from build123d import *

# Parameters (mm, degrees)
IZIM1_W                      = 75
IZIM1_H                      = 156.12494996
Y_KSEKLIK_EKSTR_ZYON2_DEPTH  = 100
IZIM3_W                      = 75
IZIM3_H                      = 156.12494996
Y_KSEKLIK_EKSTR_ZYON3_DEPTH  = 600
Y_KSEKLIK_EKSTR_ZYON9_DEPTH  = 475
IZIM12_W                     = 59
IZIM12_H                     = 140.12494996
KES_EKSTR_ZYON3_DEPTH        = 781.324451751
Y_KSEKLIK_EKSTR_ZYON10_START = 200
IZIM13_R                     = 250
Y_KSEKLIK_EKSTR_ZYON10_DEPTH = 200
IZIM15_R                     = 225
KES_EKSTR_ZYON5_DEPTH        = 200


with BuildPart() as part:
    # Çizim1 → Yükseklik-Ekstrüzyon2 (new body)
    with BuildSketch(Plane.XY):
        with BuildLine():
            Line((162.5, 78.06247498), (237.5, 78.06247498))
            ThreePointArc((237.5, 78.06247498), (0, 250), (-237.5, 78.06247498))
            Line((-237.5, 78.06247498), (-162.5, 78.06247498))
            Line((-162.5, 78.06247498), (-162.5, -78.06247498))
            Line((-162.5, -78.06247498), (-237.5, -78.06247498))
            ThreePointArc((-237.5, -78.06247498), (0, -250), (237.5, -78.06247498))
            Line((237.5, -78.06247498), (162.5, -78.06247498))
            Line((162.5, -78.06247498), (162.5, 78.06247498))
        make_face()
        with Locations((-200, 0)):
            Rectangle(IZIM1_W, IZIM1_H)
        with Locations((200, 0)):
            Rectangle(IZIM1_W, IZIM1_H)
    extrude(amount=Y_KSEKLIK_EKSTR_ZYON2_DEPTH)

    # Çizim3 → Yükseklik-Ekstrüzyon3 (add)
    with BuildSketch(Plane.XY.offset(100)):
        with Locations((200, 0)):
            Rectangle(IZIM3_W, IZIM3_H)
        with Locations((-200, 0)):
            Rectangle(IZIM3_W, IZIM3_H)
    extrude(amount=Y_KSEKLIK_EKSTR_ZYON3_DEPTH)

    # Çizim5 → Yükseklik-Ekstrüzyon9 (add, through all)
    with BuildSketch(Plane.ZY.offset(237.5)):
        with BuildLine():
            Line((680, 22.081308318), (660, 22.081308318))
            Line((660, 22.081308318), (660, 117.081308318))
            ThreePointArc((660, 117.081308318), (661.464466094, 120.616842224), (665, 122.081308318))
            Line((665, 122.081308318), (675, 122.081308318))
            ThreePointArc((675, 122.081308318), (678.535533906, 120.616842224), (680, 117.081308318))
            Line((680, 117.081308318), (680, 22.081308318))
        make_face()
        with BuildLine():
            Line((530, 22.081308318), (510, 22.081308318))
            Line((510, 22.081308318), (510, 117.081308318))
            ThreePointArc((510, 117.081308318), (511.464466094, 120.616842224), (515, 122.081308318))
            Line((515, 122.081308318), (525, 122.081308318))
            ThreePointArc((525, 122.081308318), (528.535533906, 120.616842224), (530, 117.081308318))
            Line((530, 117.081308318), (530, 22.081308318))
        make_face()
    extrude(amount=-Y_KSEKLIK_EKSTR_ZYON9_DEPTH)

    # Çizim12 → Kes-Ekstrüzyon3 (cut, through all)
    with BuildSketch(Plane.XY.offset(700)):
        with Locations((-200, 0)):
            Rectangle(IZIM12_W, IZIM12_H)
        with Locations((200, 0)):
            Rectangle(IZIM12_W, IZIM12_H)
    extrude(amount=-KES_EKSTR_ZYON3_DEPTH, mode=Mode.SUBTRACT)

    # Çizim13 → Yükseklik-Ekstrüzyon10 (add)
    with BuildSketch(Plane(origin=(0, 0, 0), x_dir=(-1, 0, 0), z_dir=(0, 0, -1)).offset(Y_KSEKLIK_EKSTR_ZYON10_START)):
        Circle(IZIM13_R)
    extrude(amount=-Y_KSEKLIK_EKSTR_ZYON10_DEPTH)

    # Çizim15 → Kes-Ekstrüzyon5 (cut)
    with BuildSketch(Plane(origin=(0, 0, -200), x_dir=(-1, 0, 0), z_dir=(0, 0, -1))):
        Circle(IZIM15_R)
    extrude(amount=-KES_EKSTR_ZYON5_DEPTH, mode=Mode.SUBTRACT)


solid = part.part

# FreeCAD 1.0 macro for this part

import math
import FreeCAD as App
import Part
import Sketcher

V = App.Vector

doc = App.newDocument("Part")
body = doc.addObject("PartDesign::Body", "Body")

# Sketch on XY plane
sketch1 = doc.addObject("Sketcher::SketchObject", "Sketch")
body.addObject(sketch1)
sketch1.AttachmentSupport = (doc.XY_Plane, [""])
sketch1.MapMode = "FlatFace"
sketch1.addGeometry(Part.ArcOfCircle(Part.Circle(V(0, 0, 0), V(0, 0, 1), 250), math.radians(18), math.radians(162)), False)
sketch1.addGeometry(Part.LineSegment(V(-238, 78, 0), V(-238, -78, 0)), False)
sketch1.addGeometry(Part.ArcOfCircle(Part.Circle(V(0, 0, 0), V(0, 0, 1), 250), math.radians(-162), math.radians(-18)), False)
sketch1.addGeometry(Part.LineSegment(V(238, -78, 0), V(238, 78, 0)), False)
sketch1.addConstraint(Sketcher.Constraint("Coincident", 0, 2, 1, 1))
sketch1.addConstraint(Sketcher.Constraint("Coincident", 1, 2, 2, 1))
sketch1.addConstraint(Sketcher.Constraint("Coincident", 2, 2, 3, 1))
sketch1.addConstraint(Sketcher.Constraint("Coincident", 3, 2, 0, 1))
sketch1.addConstraint(Sketcher.Constraint("Vertical", 1))
sketch1.addConstraint(Sketcher.Constraint("Vertical", 3))
sketch1.addConstraint(Sketcher.Constraint("Coincident", 0, 3, -1, 1))
sketch1.addConstraint(Sketcher.Constraint("Coincident", 2, 3, -1, 1))
sketch1.addConstraint(Sketcher.Constraint("Equal", 0, 2))
sketch1.addConstraint(Sketcher.Constraint("Horizontal", 1, 2, 2, 2))
sketch1.addConstraint(Sketcher.Constraint("Radius", 0, 250.0))
sketch1.addConstraint(Sketcher.Constraint("DistanceX", 1, 2, 2, 2, 475.0))
pad1 = doc.addObject("PartDesign::Pad", "Pad")
body.addObject(pad1)
pad1.Profile = sketch1
pad1.Length = 100

# Sketch on XY plane
sketch2 = doc.addObject("Sketcher::SketchObject", "Sketch001")
body.addObject(sketch2)
sketch2.AttachmentSupport = (doc.XY_Plane, [""])
sketch2.MapMode = "FlatFace"
sketch2.AttachmentOffset = App.Placement(V(0, 0, 100), App.Rotation())
sketch2.addGeometry(Part.LineSegment(V(162, 78, 0), V(162, -78, 0)), False)
sketch2.addGeometry(Part.LineSegment(V(162, -78, 0), V(238, -78, 0)), False)
sketch2.addGeometry(Part.LineSegment(V(238, -78, 0), V(238, 78, 0)), False)
sketch2.addGeometry(Part.LineSegment(V(238, 78, 0), V(162, 78, 0)), False)
sketch2.addGeometry(Part.LineSegment(V(-238, 78, 0), V(-238, -78, 0)), False)
sketch2.addGeometry(Part.LineSegment(V(-238, -78, 0), V(-162, -78, 0)), False)
sketch2.addGeometry(Part.LineSegment(V(-162, -78, 0), V(-162, 78, 0)), False)
sketch2.addGeometry(Part.LineSegment(V(-162, 78, 0), V(-238, 78, 0)), False)
sketch2.addConstraint(Sketcher.Constraint("Coincident", 0, 2, 1, 1))
sketch2.addConstraint(Sketcher.Constraint("Coincident", 1, 2, 2, 1))
sketch2.addConstraint(Sketcher.Constraint("Coincident", 2, 2, 3, 1))
sketch2.addConstraint(Sketcher.Constraint("Coincident", 3, 2, 0, 1))
sketch2.addConstraint(Sketcher.Constraint("Coincident", 4, 2, 5, 1))
sketch2.addConstraint(Sketcher.Constraint("Coincident", 5, 2, 6, 1))
sketch2.addConstraint(Sketcher.Constraint("Coincident", 6, 2, 7, 1))
sketch2.addConstraint(Sketcher.Constraint("Coincident", 7, 2, 4, 1))
sketch2.addConstraint(Sketcher.Constraint("Vertical", 0))
sketch2.addConstraint(Sketcher.Constraint("Horizontal", 1))
sketch2.addConstraint(Sketcher.Constraint("Vertical", 2))
sketch2.addConstraint(Sketcher.Constraint("Horizontal", 3))
sketch2.addConstraint(Sketcher.Constraint("Vertical", 4))
sketch2.addConstraint(Sketcher.Constraint("Horizontal", 5))
sketch2.addConstraint(Sketcher.Constraint("Vertical", 6))
sketch2.addConstraint(Sketcher.Constraint("Horizontal", 7))
sketch2.addConstraint(Sketcher.Constraint("Symmetric", 2, 2, 4, 2, -1, 1))
sketch2.addConstraint(Sketcher.Constraint("Symmetric", 0, 2, 6, 2, -1, 1))
sketch2.addConstraint(Sketcher.Constraint("Horizontal", 1, 2, 4, 2))
sketch2.addConstraint(Sketcher.Constraint("DistanceX", 1, 1, 1, 2, 75.0))
sketch2.addConstraint(Sketcher.Constraint("DistanceX", 4, 2, 0, 2, 400.0))
sketch2.addConstraint(Sketcher.Constraint("DistanceY", 0, 2, 0, 1, 156.12495))
pad2 = doc.addObject("PartDesign::Pad", "Pad001")
body.addObject(pad2)
pad2.Profile = sketch2
pad2.Length = 600

# Sketch on YZ plane
sketch3 = doc.addObject("Sketcher::SketchObject", "Sketch002")
body.addObject(sketch3)
sketch3.AttachmentSupport = (doc.YZ_Plane, [""])
sketch3.MapMode = "FlatFace"
sketch3.AttachmentOffset = App.Placement(V(0, 0, -237.5), App.Rotation())
sketch3.addGeometry(Part.LineSegment(V(22, 660, 0), V(22, 680, 0)), False)
sketch3.addGeometry(Part.LineSegment(V(22, 680, 0), V(117, 680, 0)), False)
sketch3.addGeometry(Part.ArcOfCircle(Part.Circle(V(117, 675, 0), V(0, 0, 1), 5), math.radians(0), math.radians(90)), False)
sketch3.addGeometry(Part.LineSegment(V(122, 675, 0), V(122, 665, 0)), False)
sketch3.addGeometry(Part.ArcOfCircle(Part.Circle(V(117, 665, 0), V(0, 0, 1), 5), math.radians(-90), math.radians(0)), False)
sketch3.addGeometry(Part.LineSegment(V(117, 660, 0), V(22, 660, 0)), False)
sketch3.addGeometry(Part.LineSegment(V(22, 510, 0), V(22, 530, 0)), False)
sketch3.addGeometry(Part.LineSegment(V(22, 530, 0), V(117, 530, 0)), False)
sketch3.addGeometry(Part.ArcOfCircle(Part.Circle(V(117, 525, 0), V(0, 0, 1), 5), math.radians(0), math.radians(90)), False)
sketch3.addGeometry(Part.LineSegment(V(122, 525, 0), V(122, 515, 0)), False)
sketch3.addGeometry(Part.ArcOfCircle(Part.Circle(V(117, 515, 0), V(0, 0, 1), 5), math.radians(-90), math.radians(0)), False)
sketch3.addGeometry(Part.LineSegment(V(117, 510, 0), V(22, 510, 0)), False)
sketch3.addConstraint(Sketcher.Constraint("Coincident", 0, 2, 1, 1))
sketch3.addConstraint(Sketcher.Constraint("Tangent", 1, 2, 2, 2))
sketch3.addConstraint(Sketcher.Constraint("Tangent", 2, 1, 3, 1))
sketch3.addConstraint(Sketcher.Constraint("Tangent", 3, 2, 4, 2))
sketch3.addConstraint(Sketcher.Constraint("Tangent", 4, 1, 5, 1))
sketch3.addConstraint(Sketcher.Constraint("Coincident", 5, 2, 0, 1))
sketch3.addConstraint(Sketcher.Constraint("Coincident", 6, 2, 7, 1))
sketch3.addConstraint(Sketcher.Constraint("Tangent", 7, 2, 8, 2))
sketch3.addConstraint(Sketcher.Constraint("Tangent", 8, 1, 9, 1))
sketch3.addConstraint(Sketcher.Constraint("Tangent", 9, 2, 10, 2))
sketch3.addConstraint(Sketcher.Constraint("Tangent", 10, 1, 11, 1))
sketch3.addConstraint(Sketcher.Constraint("Coincident", 11, 2, 6, 1))
sketch3.addConstraint(Sketcher.Constraint("Vertical", 0))
sketch3.addConstraint(Sketcher.Constraint("Horizontal", 1))
sketch3.addConstraint(Sketcher.Constraint("Vertical", 3))
sketch3.addConstraint(Sketcher.Constraint("Horizontal", 5))
sketch3.addConstraint(Sketcher.Constraint("Vertical", 6))
sketch3.addConstraint(Sketcher.Constraint("Horizontal", 7))
sketch3.addConstraint(Sketcher.Constraint("Vertical", 9))
sketch3.addConstraint(Sketcher.Constraint("Horizontal", 11))
sketch3.addConstraint(Sketcher.Constraint("Equal", 2, 4))
sketch3.addConstraint(Sketcher.Constraint("Equal", 4, 8))
sketch3.addConstraint(Sketcher.Constraint("Equal", 8, 10))
sketch3.addConstraint(Sketcher.Constraint("Vertical", 4, 3, 8, 3))
sketch3.addConstraint(Sketcher.Constraint("Vertical", 5, 2, 6, 2))
sketch3.addConstraint(Sketcher.Constraint("Equal", 0, 6))
sketch3.addConstraint(Sketcher.Constraint("Radius", 2, 5.0))
sketch3.addConstraint(Sketcher.Constraint("DistanceX", 1, 1, 1, 2, 95.0))
sketch3.addConstraint(Sketcher.Constraint("DistanceY", 0, 1, 0, 2, 20.0))
sketch3.addConstraint(Sketcher.Constraint("DistanceY", -1, 1, 2, 3, 675.0))
sketch3.addConstraint(Sketcher.Constraint("DistanceY", -1, 1, 8, 3, 525.0))
sketch3.addConstraint(Sketcher.Constraint("DistanceX", -1, 1, 2, 3, 117.081308))
pad3 = doc.addObject("PartDesign::Pad", "Pad002")
body.addObject(pad3)
pad3.Profile = sketch3
pad3.Type = "UpToLast"

# Sketch on XY plane
sketch4 = doc.addObject("Sketcher::SketchObject", "Sketch003")
body.addObject(sketch4)
sketch4.AttachmentSupport = (doc.XY_Plane, [""])
sketch4.MapMode = "FlatFace"
sketch4.AttachmentOffset = App.Placement(V(0, 0, 700), App.Rotation())
sketch4.addGeometry(Part.LineSegment(V(-230, 70, 0), V(-230, -70, 0)), False)
sketch4.addGeometry(Part.LineSegment(V(-230, -70, 0), V(-170, -70, 0)), False)
sketch4.addGeometry(Part.LineSegment(V(-170, -70, 0), V(-170, 70, 0)), False)
sketch4.addGeometry(Part.LineSegment(V(-170, 70, 0), V(-230, 70, 0)), False)
sketch4.addGeometry(Part.LineSegment(V(170, 70, 0), V(170, -70, 0)), False)
sketch4.addGeometry(Part.LineSegment(V(170, -70, 0), V(230, -70, 0)), False)
sketch4.addGeometry(Part.LineSegment(V(230, -70, 0), V(230, 70, 0)), False)
sketch4.addGeometry(Part.LineSegment(V(230, 70, 0), V(170, 70, 0)), False)
sketch4.addConstraint(Sketcher.Constraint("Coincident", 0, 2, 1, 1))
sketch4.addConstraint(Sketcher.Constraint("Coincident", 1, 2, 2, 1))
sketch4.addConstraint(Sketcher.Constraint("Coincident", 2, 2, 3, 1))
sketch4.addConstraint(Sketcher.Constraint("Coincident", 3, 2, 0, 1))
sketch4.addConstraint(Sketcher.Constraint("Coincident", 4, 2, 5, 1))
sketch4.addConstraint(Sketcher.Constraint("Coincident", 5, 2, 6, 1))
sketch4.addConstraint(Sketcher.Constraint("Coincident", 6, 2, 7, 1))
sketch4.addConstraint(Sketcher.Constraint("Coincident", 7, 2, 4, 1))
sketch4.addConstraint(Sketcher.Constraint("Vertical", 0))
sketch4.addConstraint(Sketcher.Constraint("Horizontal", 1))
sketch4.addConstraint(Sketcher.Constraint("Vertical", 2))
sketch4.addConstraint(Sketcher.Constraint("Horizontal", 3))
sketch4.addConstraint(Sketcher.Constraint("Vertical", 4))
sketch4.addConstraint(Sketcher.Constraint("Horizontal", 5))
sketch4.addConstraint(Sketcher.Constraint("Vertical", 6))
sketch4.addConstraint(Sketcher.Constraint("Horizontal", 7))
sketch4.addConstraint(Sketcher.Constraint("Symmetric", 2, 2, 4, 2, -1, 1))
sketch4.addConstraint(Sketcher.Constraint("Symmetric", 0, 2, 6, 2, -1, 1))
sketch4.addConstraint(Sketcher.Constraint("Horizontal", 1, 2, 4, 2))
sketch4.addConstraint(Sketcher.Constraint("DistanceX", 1, 1, 1, 2, 59.0))
sketch4.addConstraint(Sketcher.Constraint("DistanceX", 1, 2, 4, 2, 341.0))
sketch4.addConstraint(Sketcher.Constraint("DistanceY", 0, 2, 0, 1, 140.12495))
pocket1 = doc.addObject("PartDesign::Pocket", "Pocket")
body.addObject(pocket1)
pocket1.Profile = sketch4
pocket1.Type = "ThroughAll"

# Sketch on XY plane
sketch5 = doc.addObject("Sketcher::SketchObject", "Sketch004")
body.addObject(sketch5)
sketch5.AttachmentSupport = (doc.XY_Plane, [""])
sketch5.MapMode = "FlatFace"
sketch5.AttachmentOffset = App.Placement(V(0, 0, -200), App.Rotation())
sketch5.addGeometry(Part.Circle(V(0, 0, 0), V(0, 0, 1), 250), False)
sketch5.addConstraint(Sketcher.Constraint("Coincident", 0, 3, -1, 1))
sketch5.addConstraint(Sketcher.Constraint("Diameter", 0, 500.0))
pad4 = doc.addObject("PartDesign::Pad", "Pad003")
body.addObject(pad4)
pad4.Profile = sketch5
pad4.Length = 200

# Sketch on XY plane
sketch6 = doc.addObject("Sketcher::SketchObject", "Sketch005")
body.addObject(sketch6)
sketch6.AttachmentSupport = (doc.XY_Plane, [""])
sketch6.MapMode = "FlatFace"
sketch6.AttachmentOffset = App.Placement(V(0, 0, -200), App.Rotation())
sketch6.addGeometry(Part.Circle(V(0, 0, 0), V(0, 0, 1), 225), False)
sketch6.addConstraint(Sketcher.Constraint("Coincident", 0, 3, -1, 1))
sketch6.addConstraint(Sketcher.Constraint("Diameter", 0, 450.0))
pocket2 = doc.addObject("PartDesign::Pocket", "Pocket001")
body.addObject(pocket2)
pocket2.Profile = sketch6
pocket2.Length = 200
pocket2.Reversed = True

doc.recompute()
